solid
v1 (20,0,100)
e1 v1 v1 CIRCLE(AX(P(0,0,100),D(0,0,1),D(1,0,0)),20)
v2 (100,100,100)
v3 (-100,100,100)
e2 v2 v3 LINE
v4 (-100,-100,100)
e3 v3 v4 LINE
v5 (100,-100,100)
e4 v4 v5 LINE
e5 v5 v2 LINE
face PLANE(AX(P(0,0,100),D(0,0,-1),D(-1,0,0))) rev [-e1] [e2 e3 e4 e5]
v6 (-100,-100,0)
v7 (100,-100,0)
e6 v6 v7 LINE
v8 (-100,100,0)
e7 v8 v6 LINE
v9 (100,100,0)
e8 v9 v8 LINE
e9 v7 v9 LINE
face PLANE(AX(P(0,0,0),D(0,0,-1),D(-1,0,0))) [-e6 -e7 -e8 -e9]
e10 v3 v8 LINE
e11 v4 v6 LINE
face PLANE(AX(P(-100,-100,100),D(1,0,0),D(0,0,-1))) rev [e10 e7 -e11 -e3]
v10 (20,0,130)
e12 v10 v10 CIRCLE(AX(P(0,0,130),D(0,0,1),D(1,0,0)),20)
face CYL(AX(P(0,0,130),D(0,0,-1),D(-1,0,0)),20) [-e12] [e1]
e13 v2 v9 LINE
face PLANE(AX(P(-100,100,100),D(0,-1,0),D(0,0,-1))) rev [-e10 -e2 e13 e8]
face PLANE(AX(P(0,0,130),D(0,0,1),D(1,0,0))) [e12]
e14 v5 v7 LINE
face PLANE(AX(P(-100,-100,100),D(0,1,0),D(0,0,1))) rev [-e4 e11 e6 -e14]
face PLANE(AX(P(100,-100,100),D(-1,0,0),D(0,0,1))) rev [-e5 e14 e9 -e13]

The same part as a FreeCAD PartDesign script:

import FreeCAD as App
import Part
import Sketcher

V = App.Vector

doc = App.newDocument("Part")
body = doc.addObject("PartDesign::Body", "Body")

# Sketch on XY plane
sketch1 = body.newObject("Sketcher::SketchObject", "Sketch")
sketch1.AttachmentSupport = (doc.getObject("XY_Plane"), [""])
sketch1.MapMode = "FlatFace"
sketch1.addGeometry([
    Part.LineSegment(V(-100, 100, 0), V(-100, -100, 0)),
    Part.LineSegment(V(-100, -100, 0), V(100, -100, 0)),
    Part.LineSegment(V(100, -100, 0), V(100, 100, 0)),
    Part.LineSegment(V(100, 100, 0), V(-100, 100, 0)),
], False)
sketch1.addConstraint([
    Sketcher.Constraint("Coincident", 0, 2, 1, 1),
    Sketcher.Constraint("Coincident", 1, 2, 2, 1),
    Sketcher.Constraint("Coincident", 2, 2, 3, 1),
    Sketcher.Constraint("Coincident", 3, 2, 0, 1),
    Sketcher.Constraint("Vertical", 0),
    Sketcher.Constraint("Horizontal", 1),
    Sketcher.Constraint("Vertical", 2),
    Sketcher.Constraint("Horizontal", 3),
    Sketcher.Constraint("Symmetric", 0, 2, 2, 2, -1, 1),
    Sketcher.Constraint("Equal", 3, 0),
    Sketcher.Constraint("DistanceX", 1, 1, 1, 2, 200.0),
])
pad1 = body.newObject("PartDesign::Pad", "Pad")
pad1.Profile = sketch1
pad1.Length = 100

# Sketch on XY plane
sketch2 = body.newObject("Sketcher::SketchObject", "Sketch001")
sketch2.AttachmentSupport = (doc.getObject("XY_Plane"), [""])
sketch2.MapMode = "FlatFace"
sketch2.AttachmentOffset = App.Placement(V(0, 0, 100), App.Rotation())
sketch2.addGeometry(Part.Circle(V(0, 0, 0), V(0, 0, 1), 20), False)
sketch2.addConstraint([
    Sketcher.Constraint("Coincident", 0, 3, -1, 1),
    Sketcher.Constraint("Diameter", 0, 40.0),
])
pad2 = body.newObject("PartDesign::Pad", "Pad001")
pad2.Profile = sketch2
pad2.Length = 30

doc.recompute()
